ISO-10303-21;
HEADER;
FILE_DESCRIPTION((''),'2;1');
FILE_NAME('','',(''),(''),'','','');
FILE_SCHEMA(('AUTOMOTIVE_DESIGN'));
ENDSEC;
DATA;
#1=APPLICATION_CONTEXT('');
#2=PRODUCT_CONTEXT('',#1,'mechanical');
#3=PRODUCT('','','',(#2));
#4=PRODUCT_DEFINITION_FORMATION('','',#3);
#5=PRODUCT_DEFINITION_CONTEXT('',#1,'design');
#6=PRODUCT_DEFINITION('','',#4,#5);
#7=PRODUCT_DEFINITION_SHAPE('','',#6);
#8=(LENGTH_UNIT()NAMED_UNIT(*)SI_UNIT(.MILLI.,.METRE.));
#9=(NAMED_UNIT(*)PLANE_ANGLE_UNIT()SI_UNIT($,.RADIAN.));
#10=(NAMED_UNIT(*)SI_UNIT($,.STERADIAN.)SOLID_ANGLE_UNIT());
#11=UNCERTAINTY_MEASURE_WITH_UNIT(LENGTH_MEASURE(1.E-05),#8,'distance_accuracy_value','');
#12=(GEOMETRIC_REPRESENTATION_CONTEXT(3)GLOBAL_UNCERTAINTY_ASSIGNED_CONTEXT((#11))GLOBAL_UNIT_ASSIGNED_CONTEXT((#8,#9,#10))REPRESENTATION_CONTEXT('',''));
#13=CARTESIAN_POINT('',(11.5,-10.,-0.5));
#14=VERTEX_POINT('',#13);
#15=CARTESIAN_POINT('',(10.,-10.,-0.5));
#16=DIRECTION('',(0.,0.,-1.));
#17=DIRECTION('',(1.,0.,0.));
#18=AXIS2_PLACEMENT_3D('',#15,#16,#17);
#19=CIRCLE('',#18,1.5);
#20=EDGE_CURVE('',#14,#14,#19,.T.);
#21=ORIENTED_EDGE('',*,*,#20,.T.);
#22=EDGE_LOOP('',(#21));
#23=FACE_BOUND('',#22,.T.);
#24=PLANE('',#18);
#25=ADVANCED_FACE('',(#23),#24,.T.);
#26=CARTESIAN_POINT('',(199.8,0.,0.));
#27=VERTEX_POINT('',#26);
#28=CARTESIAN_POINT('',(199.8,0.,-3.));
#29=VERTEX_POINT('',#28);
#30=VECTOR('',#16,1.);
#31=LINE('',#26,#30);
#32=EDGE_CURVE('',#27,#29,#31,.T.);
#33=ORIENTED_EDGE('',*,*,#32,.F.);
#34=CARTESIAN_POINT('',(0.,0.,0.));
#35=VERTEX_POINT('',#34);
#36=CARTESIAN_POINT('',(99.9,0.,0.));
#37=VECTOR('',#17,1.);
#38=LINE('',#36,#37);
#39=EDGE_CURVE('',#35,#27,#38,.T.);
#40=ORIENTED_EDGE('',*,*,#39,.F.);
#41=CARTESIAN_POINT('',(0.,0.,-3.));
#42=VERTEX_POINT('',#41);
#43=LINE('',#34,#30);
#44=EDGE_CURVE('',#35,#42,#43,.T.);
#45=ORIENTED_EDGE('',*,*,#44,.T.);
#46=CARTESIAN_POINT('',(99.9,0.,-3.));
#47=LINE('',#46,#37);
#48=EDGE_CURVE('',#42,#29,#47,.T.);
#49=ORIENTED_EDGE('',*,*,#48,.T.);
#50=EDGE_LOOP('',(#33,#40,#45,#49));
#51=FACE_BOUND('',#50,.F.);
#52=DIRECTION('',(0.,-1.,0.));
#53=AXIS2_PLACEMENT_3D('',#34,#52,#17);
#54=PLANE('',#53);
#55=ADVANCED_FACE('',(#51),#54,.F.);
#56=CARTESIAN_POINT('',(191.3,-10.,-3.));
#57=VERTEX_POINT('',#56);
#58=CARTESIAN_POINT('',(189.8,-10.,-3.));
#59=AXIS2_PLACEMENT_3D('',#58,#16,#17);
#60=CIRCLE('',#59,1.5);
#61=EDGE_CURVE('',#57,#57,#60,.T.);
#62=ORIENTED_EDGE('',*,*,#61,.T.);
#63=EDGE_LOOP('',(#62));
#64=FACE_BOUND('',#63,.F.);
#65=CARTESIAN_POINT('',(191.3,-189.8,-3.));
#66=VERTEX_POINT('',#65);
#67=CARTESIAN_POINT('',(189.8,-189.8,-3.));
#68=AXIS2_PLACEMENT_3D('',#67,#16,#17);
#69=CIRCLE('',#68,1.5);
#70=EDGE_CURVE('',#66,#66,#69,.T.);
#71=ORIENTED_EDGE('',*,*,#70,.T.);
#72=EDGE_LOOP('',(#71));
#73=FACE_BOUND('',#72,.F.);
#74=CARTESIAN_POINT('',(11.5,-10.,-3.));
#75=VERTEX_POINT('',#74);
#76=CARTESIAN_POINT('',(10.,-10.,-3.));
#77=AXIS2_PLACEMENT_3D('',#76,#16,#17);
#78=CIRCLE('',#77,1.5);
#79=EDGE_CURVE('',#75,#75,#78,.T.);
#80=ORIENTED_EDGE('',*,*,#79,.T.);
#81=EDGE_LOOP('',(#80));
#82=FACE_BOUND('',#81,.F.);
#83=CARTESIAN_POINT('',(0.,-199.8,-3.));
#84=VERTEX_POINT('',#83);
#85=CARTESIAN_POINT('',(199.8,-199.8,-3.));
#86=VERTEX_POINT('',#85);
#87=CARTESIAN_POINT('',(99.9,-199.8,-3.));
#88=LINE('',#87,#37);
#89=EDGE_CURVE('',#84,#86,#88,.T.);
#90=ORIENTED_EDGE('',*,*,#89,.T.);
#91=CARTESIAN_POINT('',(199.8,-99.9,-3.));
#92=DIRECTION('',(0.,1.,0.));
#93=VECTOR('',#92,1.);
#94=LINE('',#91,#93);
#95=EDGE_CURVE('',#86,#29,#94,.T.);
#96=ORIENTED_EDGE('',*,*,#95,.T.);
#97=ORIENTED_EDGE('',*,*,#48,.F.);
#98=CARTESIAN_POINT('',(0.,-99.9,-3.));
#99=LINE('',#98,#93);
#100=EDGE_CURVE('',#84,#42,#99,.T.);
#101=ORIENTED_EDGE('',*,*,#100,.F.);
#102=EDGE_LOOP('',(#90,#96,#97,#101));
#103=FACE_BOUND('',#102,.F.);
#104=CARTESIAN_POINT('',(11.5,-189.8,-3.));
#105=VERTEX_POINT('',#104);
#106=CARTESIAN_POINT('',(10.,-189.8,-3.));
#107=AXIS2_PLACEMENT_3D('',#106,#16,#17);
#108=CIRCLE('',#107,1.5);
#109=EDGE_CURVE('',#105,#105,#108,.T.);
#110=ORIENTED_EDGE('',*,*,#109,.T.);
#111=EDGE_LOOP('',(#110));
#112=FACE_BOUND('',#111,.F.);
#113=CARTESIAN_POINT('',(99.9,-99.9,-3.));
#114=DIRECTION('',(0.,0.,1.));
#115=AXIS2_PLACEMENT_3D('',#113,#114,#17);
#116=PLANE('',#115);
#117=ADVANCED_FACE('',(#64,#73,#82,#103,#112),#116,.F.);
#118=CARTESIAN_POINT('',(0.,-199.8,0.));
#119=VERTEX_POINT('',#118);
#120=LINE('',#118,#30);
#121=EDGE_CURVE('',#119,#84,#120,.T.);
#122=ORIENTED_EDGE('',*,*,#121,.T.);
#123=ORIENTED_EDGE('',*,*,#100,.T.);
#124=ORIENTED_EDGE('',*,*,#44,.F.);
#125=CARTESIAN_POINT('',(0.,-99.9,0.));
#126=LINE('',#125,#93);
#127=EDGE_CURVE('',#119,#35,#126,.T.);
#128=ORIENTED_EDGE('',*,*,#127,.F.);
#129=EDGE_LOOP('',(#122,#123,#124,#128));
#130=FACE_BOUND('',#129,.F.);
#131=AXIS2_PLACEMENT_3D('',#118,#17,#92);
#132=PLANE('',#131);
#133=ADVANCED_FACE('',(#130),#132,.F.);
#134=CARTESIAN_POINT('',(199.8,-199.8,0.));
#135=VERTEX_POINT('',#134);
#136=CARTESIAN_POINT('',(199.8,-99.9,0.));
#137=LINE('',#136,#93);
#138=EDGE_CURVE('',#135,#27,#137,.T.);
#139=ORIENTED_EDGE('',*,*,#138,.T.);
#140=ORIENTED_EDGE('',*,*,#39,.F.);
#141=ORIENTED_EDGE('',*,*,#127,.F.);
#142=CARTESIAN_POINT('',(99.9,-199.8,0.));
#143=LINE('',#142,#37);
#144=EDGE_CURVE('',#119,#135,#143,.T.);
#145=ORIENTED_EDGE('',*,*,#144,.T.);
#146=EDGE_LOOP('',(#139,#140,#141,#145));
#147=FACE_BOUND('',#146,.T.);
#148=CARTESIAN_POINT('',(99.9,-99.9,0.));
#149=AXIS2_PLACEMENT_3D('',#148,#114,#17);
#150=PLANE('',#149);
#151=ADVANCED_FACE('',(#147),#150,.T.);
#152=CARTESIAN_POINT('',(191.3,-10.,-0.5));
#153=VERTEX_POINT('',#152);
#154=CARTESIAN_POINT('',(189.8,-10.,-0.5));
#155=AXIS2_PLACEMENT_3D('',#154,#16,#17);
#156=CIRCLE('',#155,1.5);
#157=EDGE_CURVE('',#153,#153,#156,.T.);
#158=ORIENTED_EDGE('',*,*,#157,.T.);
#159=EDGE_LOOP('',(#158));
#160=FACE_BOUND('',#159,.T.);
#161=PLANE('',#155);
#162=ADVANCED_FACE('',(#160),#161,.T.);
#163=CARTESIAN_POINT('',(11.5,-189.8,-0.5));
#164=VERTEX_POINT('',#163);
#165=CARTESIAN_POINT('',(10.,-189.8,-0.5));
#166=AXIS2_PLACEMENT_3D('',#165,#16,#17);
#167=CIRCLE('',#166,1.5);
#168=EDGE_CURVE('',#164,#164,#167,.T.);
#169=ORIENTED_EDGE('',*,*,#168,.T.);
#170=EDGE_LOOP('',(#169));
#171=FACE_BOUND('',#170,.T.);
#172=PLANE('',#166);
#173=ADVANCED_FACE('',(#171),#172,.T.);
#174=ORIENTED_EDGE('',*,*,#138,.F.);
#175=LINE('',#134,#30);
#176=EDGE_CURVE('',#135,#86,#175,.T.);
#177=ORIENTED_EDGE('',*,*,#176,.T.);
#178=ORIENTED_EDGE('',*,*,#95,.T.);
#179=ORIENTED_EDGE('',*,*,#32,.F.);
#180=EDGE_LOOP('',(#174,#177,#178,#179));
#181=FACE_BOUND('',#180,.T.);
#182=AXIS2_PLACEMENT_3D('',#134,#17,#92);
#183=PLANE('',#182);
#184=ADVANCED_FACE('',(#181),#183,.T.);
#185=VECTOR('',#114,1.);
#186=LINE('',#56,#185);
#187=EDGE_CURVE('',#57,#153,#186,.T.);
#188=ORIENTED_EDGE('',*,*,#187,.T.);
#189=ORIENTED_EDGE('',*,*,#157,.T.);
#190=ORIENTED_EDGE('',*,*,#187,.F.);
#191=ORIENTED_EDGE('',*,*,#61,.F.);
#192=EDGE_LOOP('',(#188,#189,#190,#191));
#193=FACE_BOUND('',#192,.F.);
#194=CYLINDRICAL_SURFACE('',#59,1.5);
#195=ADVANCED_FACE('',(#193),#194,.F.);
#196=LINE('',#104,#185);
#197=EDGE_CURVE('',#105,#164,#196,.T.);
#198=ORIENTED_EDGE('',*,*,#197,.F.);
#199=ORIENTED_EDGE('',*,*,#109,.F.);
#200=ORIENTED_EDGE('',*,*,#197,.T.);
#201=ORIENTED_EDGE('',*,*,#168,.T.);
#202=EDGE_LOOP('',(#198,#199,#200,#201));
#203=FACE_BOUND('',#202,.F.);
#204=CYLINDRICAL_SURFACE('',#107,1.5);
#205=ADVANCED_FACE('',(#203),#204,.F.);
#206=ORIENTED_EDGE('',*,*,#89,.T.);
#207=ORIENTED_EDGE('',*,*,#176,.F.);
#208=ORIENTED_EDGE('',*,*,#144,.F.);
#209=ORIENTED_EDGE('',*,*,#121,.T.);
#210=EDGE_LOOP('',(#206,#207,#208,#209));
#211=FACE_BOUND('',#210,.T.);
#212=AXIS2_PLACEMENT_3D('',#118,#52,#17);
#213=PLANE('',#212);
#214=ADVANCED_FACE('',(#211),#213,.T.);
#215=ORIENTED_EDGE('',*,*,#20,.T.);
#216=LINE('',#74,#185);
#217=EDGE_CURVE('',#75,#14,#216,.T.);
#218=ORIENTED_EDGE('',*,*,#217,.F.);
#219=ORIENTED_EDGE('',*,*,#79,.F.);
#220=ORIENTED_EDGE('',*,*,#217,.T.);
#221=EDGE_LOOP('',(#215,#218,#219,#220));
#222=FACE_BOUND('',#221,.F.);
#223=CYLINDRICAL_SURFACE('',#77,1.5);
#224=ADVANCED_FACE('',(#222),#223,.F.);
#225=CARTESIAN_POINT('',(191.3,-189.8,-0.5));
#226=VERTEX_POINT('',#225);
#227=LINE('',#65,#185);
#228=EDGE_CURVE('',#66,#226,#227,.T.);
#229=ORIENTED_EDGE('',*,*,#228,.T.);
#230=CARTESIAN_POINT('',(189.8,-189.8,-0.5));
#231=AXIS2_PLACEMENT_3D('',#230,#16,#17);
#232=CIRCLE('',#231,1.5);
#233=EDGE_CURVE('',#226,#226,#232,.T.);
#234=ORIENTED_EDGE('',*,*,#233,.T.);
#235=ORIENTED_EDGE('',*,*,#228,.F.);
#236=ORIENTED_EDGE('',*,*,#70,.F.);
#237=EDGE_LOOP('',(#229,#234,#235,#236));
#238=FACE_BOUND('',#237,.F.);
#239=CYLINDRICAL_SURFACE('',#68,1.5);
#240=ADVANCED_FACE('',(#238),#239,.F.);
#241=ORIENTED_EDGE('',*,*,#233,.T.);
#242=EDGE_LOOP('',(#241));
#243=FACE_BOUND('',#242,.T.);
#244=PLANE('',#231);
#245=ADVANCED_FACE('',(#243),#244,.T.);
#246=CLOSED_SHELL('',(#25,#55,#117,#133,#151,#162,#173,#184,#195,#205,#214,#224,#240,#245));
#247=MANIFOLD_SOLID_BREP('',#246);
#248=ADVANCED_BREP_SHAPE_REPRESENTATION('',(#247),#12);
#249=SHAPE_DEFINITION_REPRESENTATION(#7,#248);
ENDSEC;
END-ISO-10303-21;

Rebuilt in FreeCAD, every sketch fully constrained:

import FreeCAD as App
import Part
import Sketcher

V = App.Vector

doc = App.newDocument("Part")
body = doc.addObject("PartDesign::Body", "Body")

# Sketch on XY plane
sketch1 = body.newObject("Sketcher::SketchObject", "Sketch")
sketch1.AttachmentSupport = (doc.getObject("XY_Plane"), [""])
sketch1.MapMode = "FlatFace"
sketch1.addGeometry(Part.LineSegment(V(0, 0, 0), V(0, -199.8, 0)), False)
sketch1.addGeometry(Part.LineSegment(V(0, -199.8, 0), V(199.8, -199.8, 0)), False)
sketch1.addGeometry(Part.LineSegment(V(199.8, -199.8, 0), V(199.8, 0, 0)), False)
sketch1.addGeometry(Part.LineSegment(V(199.8, 0, 0), V(0, 0, 0)), False)
sketch1.addConstraint(Sketcher.Constraint("Coincident", 0, 2, 1, 1))
sketch1.addConstraint(Sketcher.Constraint("Coincident", 1, 2, 2, 1))
sketch1.addConstraint(Sketcher.Constraint("Coincident", 2, 2, 3, 1))
sketch1.addConstraint(Sketcher.Constraint("Coincident", 3, 2, 0, 1))
sketch1.addConstraint(Sketcher.Constraint("Vertical", 0))
sketch1.addConstraint(Sketcher.Constraint("Horizontal", 1))
sketch1.addConstraint(Sketcher.Constraint("Vertical", 2))
sketch1.addConstraint(Sketcher.Constraint("Horizontal", 3))
sketch1.addConstraint(Sketcher.Constraint("Coincident", 3, 2, -1, 1))
sketch1.addConstraint(Sketcher.Constraint("Equal", 3, 0))
sketch1.addConstraint(Sketcher.Constraint("DistanceX", 1, 1, 1, 2, 199.8))
pad1 = body.newObject("PartDesign::Pad", "Pad")
pad1.Profile = sketch1
pad1.Length = 3
pad1.Reversed = True

# Sketch on XY plane
sketch2 = body.newObject("Sketcher::SketchObject", "Sketch001")
sketch2.AttachmentSupport = (doc.getObject("XY_Plane"), [""])
sketch2.MapMode = "FlatFace"
sketch2.AttachmentOffset = App.Placement(V(0, 0, -3), App.Rotation())
sketch2.addGeometry(Part.Circle(V(10, -10, 0), V(0, 0, 1), 1.5), False)
sketch2.addGeometry(Part.Circle(V(189.8, -10, 0), V(0, 0, 1), 1.5), False)
sketch2.addGeometry(Part.Circle(V(10, -189.8, 0), V(0, 0, 1), 1.5), False)
sketch2.addGeometry(Part.Circle(V(189.8, -189.8, 0), V(0, 0, 1), 1.5), False)
sketch2.addConstraint(Sketcher.Constraint("Equal", 0, 1))
sketch2.addConstraint(Sketcher.Constraint("Equal", 1, 2))
sketch2.addConstraint(Sketcher.Constraint("Equal", 2, 3))
sketch2.addConstraint(Sketcher.Constraint("Horizontal", 0, 3, 1, 3))
sketch2.addConstraint(Sketcher.Constraint("Horizontal", 2, 3, 3, 3))
sketch2.addConstraint(Sketcher.Constraint("Vertical", 0, 3, 2, 3))
sketch2.addConstraint(Sketcher.Constraint("Vertical", 1, 3, 3, 3))
sketch2.addConstraint(Sketcher.Constraint("Diameter", 0, 3.0))
sketch2.addConstraint(Sketcher.Constraint("DistanceX", -1, 1, 0, 3, 10.0))
sketch2.addConstraint(Sketcher.Constraint("DistanceY", 0, 3, -1, 1, 10.0))
sketch2.addConstraint(Sketcher.Constraint("DistanceX", -1, 1, 1, 3, 189.8))
sketch2.addConstraint(Sketcher.Constraint("DistanceY", 2, 3, -1, 1, 189.8))
pocket1 = body.newObject("PartDesign::Pocket", "Pocket")
pocket1.Profile = sketch2
pocket1.Length = 2.5
pocket1.Reversed = True

doc.recompute()
